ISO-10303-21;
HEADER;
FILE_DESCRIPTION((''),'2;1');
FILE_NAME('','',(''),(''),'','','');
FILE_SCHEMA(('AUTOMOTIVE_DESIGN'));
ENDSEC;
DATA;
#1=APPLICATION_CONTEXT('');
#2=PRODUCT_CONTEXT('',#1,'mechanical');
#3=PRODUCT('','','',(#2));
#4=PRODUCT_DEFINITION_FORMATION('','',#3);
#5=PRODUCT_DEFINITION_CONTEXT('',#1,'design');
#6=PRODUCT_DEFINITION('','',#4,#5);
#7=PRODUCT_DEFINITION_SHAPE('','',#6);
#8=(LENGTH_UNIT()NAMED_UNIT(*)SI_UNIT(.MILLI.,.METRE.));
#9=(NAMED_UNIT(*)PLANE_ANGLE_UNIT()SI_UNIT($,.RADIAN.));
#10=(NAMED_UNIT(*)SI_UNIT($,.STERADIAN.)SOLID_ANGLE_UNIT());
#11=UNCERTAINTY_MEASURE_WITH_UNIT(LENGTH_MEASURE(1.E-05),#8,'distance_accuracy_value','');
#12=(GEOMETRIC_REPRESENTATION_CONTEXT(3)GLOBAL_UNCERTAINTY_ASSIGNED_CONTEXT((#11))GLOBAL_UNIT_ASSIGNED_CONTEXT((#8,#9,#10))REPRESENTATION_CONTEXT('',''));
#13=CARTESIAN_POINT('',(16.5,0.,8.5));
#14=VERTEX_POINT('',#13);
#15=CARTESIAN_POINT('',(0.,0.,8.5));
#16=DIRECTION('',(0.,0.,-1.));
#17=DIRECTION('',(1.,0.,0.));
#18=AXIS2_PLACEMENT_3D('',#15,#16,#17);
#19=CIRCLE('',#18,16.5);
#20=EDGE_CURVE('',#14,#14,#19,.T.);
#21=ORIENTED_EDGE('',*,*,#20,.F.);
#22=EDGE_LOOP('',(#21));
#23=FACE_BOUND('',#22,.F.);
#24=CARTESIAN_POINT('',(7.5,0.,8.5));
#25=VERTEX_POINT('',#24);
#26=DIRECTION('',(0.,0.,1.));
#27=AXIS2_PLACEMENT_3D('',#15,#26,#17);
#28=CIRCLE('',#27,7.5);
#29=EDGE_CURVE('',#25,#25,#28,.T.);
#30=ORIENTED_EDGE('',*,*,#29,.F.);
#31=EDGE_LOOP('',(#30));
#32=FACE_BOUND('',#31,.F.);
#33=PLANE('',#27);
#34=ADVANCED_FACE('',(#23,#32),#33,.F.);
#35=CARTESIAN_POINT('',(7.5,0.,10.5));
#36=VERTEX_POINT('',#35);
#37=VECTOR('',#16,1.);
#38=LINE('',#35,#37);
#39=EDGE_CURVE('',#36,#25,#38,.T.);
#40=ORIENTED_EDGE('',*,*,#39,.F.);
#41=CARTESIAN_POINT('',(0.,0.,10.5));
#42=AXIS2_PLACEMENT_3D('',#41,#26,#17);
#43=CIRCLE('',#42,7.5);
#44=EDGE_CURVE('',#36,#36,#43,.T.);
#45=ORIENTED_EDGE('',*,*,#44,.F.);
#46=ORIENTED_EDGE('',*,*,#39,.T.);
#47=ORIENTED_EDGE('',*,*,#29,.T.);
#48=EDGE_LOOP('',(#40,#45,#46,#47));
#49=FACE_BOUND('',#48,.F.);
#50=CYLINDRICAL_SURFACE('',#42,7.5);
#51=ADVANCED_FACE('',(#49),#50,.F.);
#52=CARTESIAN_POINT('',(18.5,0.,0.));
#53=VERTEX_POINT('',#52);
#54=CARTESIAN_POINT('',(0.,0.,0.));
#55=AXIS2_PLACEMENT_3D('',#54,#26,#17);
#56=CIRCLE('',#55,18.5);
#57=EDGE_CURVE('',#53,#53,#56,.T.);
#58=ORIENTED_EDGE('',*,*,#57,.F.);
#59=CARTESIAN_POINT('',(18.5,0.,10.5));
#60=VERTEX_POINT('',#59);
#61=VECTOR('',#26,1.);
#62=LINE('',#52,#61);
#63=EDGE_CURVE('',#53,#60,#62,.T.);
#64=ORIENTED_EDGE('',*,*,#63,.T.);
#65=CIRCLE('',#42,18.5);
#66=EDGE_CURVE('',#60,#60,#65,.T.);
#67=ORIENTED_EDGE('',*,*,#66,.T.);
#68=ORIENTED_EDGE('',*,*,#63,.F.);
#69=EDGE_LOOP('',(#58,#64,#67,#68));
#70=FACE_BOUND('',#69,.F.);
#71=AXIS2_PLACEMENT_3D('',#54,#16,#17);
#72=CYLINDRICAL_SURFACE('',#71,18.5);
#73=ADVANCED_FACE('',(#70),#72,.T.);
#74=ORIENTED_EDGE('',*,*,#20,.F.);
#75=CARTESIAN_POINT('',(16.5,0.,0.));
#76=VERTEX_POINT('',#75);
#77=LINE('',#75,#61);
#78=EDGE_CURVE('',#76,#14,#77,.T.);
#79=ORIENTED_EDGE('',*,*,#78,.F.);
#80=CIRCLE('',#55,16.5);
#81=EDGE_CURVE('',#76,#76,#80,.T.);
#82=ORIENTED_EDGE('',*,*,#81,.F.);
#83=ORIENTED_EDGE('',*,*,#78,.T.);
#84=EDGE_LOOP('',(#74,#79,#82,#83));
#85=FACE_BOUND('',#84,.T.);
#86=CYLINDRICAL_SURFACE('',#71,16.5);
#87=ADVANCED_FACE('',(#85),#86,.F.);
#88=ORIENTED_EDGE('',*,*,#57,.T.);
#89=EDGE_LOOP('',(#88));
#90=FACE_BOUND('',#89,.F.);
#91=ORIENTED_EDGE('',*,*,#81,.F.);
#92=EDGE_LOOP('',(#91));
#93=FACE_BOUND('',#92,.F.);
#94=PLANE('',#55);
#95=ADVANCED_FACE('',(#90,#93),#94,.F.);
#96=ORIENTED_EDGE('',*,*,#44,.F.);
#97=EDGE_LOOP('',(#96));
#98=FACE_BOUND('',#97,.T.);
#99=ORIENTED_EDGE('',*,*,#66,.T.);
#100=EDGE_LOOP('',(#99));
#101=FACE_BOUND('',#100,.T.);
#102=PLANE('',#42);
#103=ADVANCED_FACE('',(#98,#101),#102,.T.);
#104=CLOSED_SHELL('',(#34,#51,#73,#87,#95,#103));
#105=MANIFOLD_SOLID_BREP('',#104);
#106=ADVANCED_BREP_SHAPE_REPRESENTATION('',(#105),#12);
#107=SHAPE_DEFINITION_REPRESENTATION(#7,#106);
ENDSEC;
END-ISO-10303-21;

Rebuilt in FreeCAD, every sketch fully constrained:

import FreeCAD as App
import Part
import Sketcher


def faces_at(feature, points):
    """Names of the faces that lie closest to the given points."""
    faces = feature.Shape.Faces
    near = lambda p: min(range(len(faces)), key=lambda i: faces[i].distToShape(Part.Vertex(*p))[0])
    return sorted({f"Face{near(p) + 1}" for p in points})

doc = App.newDocument("Part")
body = doc.addObject("PartDesign::Body", "Body")

# Sketch on XY plane
sketch1 = body.newObject("Sketcher::SketchObject", "Sketch")
sketch1.AttachmentSupport = (doc.getObject("XY_Plane"), [""])
sketch1.MapMode = "FlatFace"
sketch1.addGeometry(Part.Circle(App.Vector(0, 0, 0), App.Vector(0, 0, 1), 18), False)
sketch1.addConstraint([
    Sketcher.Constraint("Coincident", 0, 3, -1, 1),
    Sketcher.Constraint("Diameter", 0, 37.0),
])
pad1 = body.newObject("PartDesign::Pad", "Pad")
pad1.Profile = sketch1
pad1.Length = 10.5
doc.recompute()

thickness = body.newObject("PartDesign::Thickness", "Thickness")
thickness.Base = (pad1, faces_at(pad1, [(0, 0, 0)]))
thickness.Value = 2
thickness.Reversed = True
thickness.Join = "Arc"

# Sketch on XY plane
sketch2 = body.newObject("Sketcher::SketchObject", "Sketch001")
sketch2.AttachmentSupport = (doc.getObject("XY_Plane"), [""])
sketch2.MapMode = "FlatFace"
sketch2.AttachmentOffset = App.Placement(App.Vector(0, 0, 10.5), App.Rotation())
sketch2.addGeometry(Part.Circle(App.Vector(0, 0, 0), App.Vector(0, 0, 1), 8), False)
sketch2.addConstraint([
    Sketcher.Constraint("Coincident", 0, 3, -1, 1),
    Sketcher.Constraint("Diameter", 0, 15.0),
])
pocket1 = body.newObject("PartDesign::Pocket", "Pocket")
pocket1.Profile = sketch2
pocket1.Type = "ThroughAll"

doc.recompute()
